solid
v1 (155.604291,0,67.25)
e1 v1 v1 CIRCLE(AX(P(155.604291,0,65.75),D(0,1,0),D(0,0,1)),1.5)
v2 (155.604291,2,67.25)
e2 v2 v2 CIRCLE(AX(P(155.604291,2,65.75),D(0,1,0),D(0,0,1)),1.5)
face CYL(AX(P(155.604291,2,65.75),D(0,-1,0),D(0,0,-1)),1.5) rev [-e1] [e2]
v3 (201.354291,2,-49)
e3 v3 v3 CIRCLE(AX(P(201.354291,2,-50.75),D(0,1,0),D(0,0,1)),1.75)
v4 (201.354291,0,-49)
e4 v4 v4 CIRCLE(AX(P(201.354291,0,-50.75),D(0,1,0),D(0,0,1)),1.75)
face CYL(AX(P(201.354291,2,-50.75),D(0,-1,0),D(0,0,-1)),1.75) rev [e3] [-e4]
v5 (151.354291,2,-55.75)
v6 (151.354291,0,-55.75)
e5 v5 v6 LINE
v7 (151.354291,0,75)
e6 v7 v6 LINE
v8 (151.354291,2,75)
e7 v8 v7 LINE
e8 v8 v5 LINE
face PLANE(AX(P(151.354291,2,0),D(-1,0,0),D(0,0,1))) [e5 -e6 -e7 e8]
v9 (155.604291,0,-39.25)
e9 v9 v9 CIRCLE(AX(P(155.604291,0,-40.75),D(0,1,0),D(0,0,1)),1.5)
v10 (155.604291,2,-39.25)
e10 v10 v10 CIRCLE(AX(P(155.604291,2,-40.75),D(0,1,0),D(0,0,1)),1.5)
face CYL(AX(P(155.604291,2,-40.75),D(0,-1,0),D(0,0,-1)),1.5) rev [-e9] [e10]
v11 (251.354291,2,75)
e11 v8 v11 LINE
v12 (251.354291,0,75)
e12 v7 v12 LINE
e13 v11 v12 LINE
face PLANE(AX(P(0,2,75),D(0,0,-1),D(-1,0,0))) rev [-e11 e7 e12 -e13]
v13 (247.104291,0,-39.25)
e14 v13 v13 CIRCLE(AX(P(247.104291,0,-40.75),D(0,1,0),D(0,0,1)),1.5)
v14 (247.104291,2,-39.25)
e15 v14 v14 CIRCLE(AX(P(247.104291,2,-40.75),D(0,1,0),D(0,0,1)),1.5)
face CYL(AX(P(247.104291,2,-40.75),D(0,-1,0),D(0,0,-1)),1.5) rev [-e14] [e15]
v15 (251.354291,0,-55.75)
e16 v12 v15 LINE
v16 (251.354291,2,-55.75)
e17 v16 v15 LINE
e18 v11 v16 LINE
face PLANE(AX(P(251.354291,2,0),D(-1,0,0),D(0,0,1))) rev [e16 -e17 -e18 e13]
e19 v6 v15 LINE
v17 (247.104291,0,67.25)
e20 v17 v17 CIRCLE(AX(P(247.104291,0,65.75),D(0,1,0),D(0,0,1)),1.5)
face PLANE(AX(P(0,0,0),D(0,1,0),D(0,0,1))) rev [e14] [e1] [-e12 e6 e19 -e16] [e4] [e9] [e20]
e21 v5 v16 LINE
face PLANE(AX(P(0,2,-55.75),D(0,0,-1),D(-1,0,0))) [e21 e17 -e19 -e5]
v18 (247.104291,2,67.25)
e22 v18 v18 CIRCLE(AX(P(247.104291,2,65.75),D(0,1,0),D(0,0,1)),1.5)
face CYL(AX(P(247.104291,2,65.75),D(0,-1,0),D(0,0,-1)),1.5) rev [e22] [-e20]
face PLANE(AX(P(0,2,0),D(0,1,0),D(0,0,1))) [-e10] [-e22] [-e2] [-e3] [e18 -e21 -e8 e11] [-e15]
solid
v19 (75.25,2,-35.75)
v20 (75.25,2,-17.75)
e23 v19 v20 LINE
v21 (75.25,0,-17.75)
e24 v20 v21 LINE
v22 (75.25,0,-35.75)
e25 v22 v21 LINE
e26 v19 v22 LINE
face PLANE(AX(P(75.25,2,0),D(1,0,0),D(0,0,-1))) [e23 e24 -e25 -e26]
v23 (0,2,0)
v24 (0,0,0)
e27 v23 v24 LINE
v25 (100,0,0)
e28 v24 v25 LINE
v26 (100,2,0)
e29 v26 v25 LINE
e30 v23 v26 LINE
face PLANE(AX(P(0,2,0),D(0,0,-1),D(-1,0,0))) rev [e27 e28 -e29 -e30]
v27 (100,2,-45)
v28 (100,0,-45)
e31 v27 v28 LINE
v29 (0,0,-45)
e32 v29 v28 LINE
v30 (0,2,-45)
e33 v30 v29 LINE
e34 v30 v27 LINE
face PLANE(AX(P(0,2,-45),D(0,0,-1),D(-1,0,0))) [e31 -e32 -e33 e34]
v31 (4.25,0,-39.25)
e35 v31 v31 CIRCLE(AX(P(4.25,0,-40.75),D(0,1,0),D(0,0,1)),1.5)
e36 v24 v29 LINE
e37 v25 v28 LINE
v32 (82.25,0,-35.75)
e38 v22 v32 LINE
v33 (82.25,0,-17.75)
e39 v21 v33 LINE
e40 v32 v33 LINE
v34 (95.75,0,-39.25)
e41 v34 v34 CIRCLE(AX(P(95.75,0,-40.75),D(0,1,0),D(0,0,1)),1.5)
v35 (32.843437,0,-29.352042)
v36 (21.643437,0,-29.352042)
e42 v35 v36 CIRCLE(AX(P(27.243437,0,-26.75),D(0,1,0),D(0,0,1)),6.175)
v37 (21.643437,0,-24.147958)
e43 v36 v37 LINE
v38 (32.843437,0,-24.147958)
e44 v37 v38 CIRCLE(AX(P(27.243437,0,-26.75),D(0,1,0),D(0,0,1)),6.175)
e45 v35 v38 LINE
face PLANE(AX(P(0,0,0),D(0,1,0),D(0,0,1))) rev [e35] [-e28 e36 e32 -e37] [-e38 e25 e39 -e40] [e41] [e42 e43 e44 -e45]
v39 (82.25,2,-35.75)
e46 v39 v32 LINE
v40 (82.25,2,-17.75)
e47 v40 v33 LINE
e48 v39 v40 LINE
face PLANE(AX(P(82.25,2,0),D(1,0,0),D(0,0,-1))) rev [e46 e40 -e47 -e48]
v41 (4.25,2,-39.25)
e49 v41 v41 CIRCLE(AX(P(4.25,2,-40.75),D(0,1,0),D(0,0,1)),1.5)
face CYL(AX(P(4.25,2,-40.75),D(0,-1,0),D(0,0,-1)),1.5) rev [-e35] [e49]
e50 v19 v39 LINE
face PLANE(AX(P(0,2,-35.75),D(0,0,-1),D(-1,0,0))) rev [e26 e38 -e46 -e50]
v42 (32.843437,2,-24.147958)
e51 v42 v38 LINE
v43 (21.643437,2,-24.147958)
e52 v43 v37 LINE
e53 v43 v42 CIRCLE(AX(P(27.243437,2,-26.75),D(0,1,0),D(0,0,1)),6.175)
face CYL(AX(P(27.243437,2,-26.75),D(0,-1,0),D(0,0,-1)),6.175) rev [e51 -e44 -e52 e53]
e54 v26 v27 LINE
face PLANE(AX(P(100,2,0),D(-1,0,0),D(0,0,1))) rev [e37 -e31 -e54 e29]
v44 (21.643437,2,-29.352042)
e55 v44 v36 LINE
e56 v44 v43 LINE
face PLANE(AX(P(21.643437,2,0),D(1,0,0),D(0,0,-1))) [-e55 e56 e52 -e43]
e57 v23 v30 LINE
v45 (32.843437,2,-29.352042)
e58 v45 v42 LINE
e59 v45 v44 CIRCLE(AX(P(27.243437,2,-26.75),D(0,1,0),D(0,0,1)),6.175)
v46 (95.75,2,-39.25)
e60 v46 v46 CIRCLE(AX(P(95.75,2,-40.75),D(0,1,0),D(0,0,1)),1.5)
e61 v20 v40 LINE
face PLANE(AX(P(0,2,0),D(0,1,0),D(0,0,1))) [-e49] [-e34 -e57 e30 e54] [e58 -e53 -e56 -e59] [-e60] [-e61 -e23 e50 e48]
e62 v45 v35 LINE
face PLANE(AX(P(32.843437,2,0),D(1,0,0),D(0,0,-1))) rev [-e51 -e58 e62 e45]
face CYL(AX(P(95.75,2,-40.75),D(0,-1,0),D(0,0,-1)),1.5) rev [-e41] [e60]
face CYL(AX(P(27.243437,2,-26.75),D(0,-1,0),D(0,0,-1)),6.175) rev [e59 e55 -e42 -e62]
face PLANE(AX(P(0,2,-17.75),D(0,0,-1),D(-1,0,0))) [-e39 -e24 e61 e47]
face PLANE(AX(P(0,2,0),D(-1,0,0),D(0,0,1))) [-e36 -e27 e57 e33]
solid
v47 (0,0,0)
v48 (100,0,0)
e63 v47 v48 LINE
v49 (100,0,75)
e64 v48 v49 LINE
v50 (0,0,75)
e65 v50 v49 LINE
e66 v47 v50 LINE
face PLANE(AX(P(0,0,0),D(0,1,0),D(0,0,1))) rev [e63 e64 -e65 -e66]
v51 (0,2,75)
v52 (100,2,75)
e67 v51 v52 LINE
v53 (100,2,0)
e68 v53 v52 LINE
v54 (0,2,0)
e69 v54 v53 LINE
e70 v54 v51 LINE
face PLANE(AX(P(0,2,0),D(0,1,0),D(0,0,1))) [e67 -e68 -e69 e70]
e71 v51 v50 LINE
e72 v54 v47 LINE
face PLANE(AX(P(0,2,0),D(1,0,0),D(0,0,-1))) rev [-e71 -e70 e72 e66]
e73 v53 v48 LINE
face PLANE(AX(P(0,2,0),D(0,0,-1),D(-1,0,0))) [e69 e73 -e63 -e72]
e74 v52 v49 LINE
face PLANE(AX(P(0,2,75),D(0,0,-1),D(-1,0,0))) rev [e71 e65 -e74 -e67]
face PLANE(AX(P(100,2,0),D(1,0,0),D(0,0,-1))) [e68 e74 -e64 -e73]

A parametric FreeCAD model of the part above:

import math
import FreeCAD as App
import Part
import Sketcher

V = App.Vector


def add_polygon(sketch, points):
    """Adds a closed chain of lines whose ends are joined by coincident constraints."""
    first, n = sketch.GeometryCount, len(points)
    for a, b in zip(points, points[1:] + points[:1]):
        sketch.addGeometry(Part.LineSegment(App.Vector(*a, 0), App.Vector(*b, 0)), False)
    for i in range(n):
        sketch.addConstraint(Sketcher.Constraint("Coincident", first + i, 2, first + (i + 1) % n, 1))

doc = App.newDocument("Part")
body = doc.addObject("PartDesign::Body", "Body")

# Sketch on XZ plane
sketch1 = body.newObject("Sketcher::SketchObject", "Sketch")
sketch1.AttachmentSupport = (doc.getObject("XZ_Plane"), [""])
sketch1.MapMode = "FlatFace"
add_polygon(sketch1, [(0, -45), (0, 0), (100, 0), (100, -45)])  # lines 0-3
sketch1.addGeometry(Part.LineSegment(V(21.6, -24.1, 0), V(21.6, -29.4, 0)), False)  # 4
sketch1.addGeometry(Part.ArcOfCircle(Part.Circle(V(27.2, -26.8, 0), V(0, 0, 1), 6.2), math.radians(-155), math.radians(-25)), False)  # 5
sketch1.addGeometry(Part.LineSegment(V(32.8, -29.4, 0), V(32.8, -24.1, 0)), False)  # 6
sketch1.addGeometry(Part.ArcOfCircle(Part.Circle(V(27.2, -26.8, 0), V(0, 0, 1), 6.2), math.radians(25), math.radians(155)), False)  # 7
add_polygon(sketch1, [(82.2, -17.8), (75.2, -17.8), (75.2, -35.8), (82.2, -35.8)])  # lines 8-11
sketch1.addGeometry(Part.Circle(V(4.2, -40.8, 0), V(0, 0, 1), 1.5), False)  # 12
sketch1.addGeometry(Part.Circle(V(95.8, -40.8, 0), V(0, 0, 1), 1.5), False)  # 13
sketch1.addConstraint([
    Sketcher.Constraint("Coincident", 4, 2, 5, 1),
    Sketcher.Constraint("Coincident", 5, 2, 6, 1),
    Sketcher.Constraint("Coincident", 6, 2, 7, 1),
    Sketcher.Constraint("Coincident", 7, 2, 4, 1),
    Sketcher.Constraint("Vertical", 0),
    Sketcher.Constraint("Horizontal", 1),
    Sketcher.Constraint("Vertical", 2),
    Sketcher.Constraint("Horizontal", 3),
    Sketcher.Constraint("Vertical", 4),
    Sketcher.Constraint("Vertical", 6),
    Sketcher.Constraint("Horizontal", 8),
    Sketcher.Constraint("Vertical", 9),
    Sketcher.Constraint("Horizontal", 10),
    Sketcher.Constraint("Vertical", 11),
    Sketcher.Constraint("Coincident", 0, 2, -1, 1),
    Sketcher.Constraint("Coincident", 7, 3, 5, 3),
    Sketcher.Constraint("Equal", 5, 7),
    Sketcher.Constraint("Equal", 12, 13),
    Sketcher.Constraint("Horizontal", 12, 3, 13, 3),
    Sketcher.Constraint("Horizontal", 4, 2, 5, 2),
    Sketcher.Constraint("Diameter", 12, 3.0),
    Sketcher.Constraint("DistanceX", 1, 1, 1, 2, 100.0),
    Sketcher.Constraint("DistanceX", 8, 2, 8, 1, 7.0),
    Sketcher.Constraint("DistanceY", 0, 1, 0, 2, 45.0),
    Sketcher.Constraint("DistanceY", 9, 2, 9, 1, 18.0),
    Sketcher.Constraint("Radius", 5, 6.175),
    Sketcher.Constraint("DistanceY", 12, 3, 5, 3, 14.0),
    Sketcher.Constraint("DistanceY", 13, 3, 8, 2, 23.0),
    Sketcher.Constraint("DistanceX", 12, 3, 13, 3, 91.5),
    Sketcher.Constraint("DistanceX", 4, 2, 5, 3, 5.6),
    Sketcher.Constraint("DistanceX", 8, 2, 13, 3, 20.5),
    Sketcher.Constraint("DistanceY", 5, 3, -1, 1, 26.75),
    Sketcher.Constraint("DistanceX", -1, 1, 12, 3, 4.25),
    Sketcher.Constraint("DistanceX", -1, 1, 5, 3, 27.243437),
])
pad1 = body.newObject("PartDesign::Pad", "Pad")
pad1.Profile = sketch1
pad1.Length = 2
pad1.Reversed = True
body2 = doc.addObject("PartDesign::Body", "Body001")

# Sketch on XZ plane
sketch2 = body2.newObject("Sketcher::SketchObject", "Sketch001")
sketch2.AttachmentSupport = (doc.getObject("XZ_Plane001"), [""])
sketch2.MapMode = "FlatFace"
add_polygon(sketch2, [(151.4, -55.8), (151.4, 75), (251.4, 75), (251.4, -55.8)])  # lines 0-3
sketch2.addGeometry(Part.Circle(V(155.6, 65.8, 0), V(0, 0, 1), 1.5), False)  # 4
sketch2.addGeometry(Part.Circle(V(247.1, 65.8, 0), V(0, 0, 1), 1.5), False)  # 5
sketch2.addGeometry(Part.Circle(V(155.6, -40.8, 0), V(0, 0, 1), 1.5), False)  # 6
sketch2.addGeometry(Part.Circle(V(201.4, -50.8, 0), V(0, 0, 1), 1.8), False)  # 7
sketch2.addGeometry(Part.Circle(V(247.1, -40.8, 0), V(0, 0, 1), 1.5), False)  # 8
sketch2.addConstraint([
    Sketcher.Constraint("Vertical", 0),
    Sketcher.Constraint("Horizontal", 1),
    Sketcher.Constraint("Vertical", 2),
    Sketcher.Constraint("Horizontal", 3),
    Sketcher.Constraint("Equal", 4, 5),
    Sketcher.Constraint("Equal", 5, 6),
    Sketcher.Constraint("Equal", 6, 8),
    Sketcher.Constraint("Horizontal", 4, 3, 5, 3),
    Sketcher.Constraint("Horizontal", 6, 3, 8, 3),
    Sketcher.Constraint("Vertical", 4, 3, 6, 3),
    Sketcher.Constraint("Vertical", 5, 3, 8, 3),
    Sketcher.Constraint("Diameter", 4, 3.0),
    Sketcher.Constraint("Diameter", 7, 3.5),
    Sketcher.Constraint("DistanceX", 1, 1, 1, 2, 100.0),
    Sketcher.Constraint("DistanceY", -1, 1, 0, 2, 75.0),
    Sketcher.Constraint("DistanceY", 7, 3, 6, 3, 10.0),
    Sketcher.Constraint("DistanceX", 0, 2, 7, 3, 50.0),
    Sketcher.Constraint("DistanceY", 2, 2, 8, 3, 15.0),
    Sketcher.Constraint("DistanceY", 0, 1, 0, 2, 130.75),
    Sketcher.Constraint("DistanceX", 4, 3, 5, 3, 91.5),
    Sketcher.Constraint("DistanceY", 6, 3, 4, 3, 106.5),
    Sketcher.Constraint("DistanceX", 6, 3, 7, 3, 45.75),
    Sketcher.Constraint("DistanceX", -1, 1, 4, 3, 155.604291),
])
pad2 = body2.newObject("PartDesign::Pad", "Pad001")
pad2.Profile = sketch2
pad2.Length = 2
pad2.Reversed = True
body3 = doc.addObject("PartDesign::Body", "Body002")

# Sketch on XZ plane
sketch3 = body3.newObject("Sketcher::SketchObject", "Sketch002")
sketch3.AttachmentSupport = (doc.getObject("XZ_Plane002"), [""])
sketch3.MapMode = "FlatFace"
add_polygon(sketch3, [(0, 0), (0, 75), (100, 75), (100, 0)])  # lines 0-3
sketch3.addConstraint([
    Sketcher.Constraint("Vertical", 0),
    Sketcher.Constraint("Horizontal", 1),
    Sketcher.Constraint("Vertical", 2),
    Sketcher.Constraint("Horizontal", 3),
    Sketcher.Constraint("Coincident", 3, 2, -1, 1),
    Sketcher.Constraint("DistanceX", 1, 1, 1, 2, 100.0),
    Sketcher.Constraint("DistanceY", 0, 1, 0, 2, 75.0),
])
pad3 = body3.newObject("PartDesign::Pad", "Pad002")
pad3.Profile = sketch3
pad3.Length = 2
pad3.Reversed = True

doc.recompute()
